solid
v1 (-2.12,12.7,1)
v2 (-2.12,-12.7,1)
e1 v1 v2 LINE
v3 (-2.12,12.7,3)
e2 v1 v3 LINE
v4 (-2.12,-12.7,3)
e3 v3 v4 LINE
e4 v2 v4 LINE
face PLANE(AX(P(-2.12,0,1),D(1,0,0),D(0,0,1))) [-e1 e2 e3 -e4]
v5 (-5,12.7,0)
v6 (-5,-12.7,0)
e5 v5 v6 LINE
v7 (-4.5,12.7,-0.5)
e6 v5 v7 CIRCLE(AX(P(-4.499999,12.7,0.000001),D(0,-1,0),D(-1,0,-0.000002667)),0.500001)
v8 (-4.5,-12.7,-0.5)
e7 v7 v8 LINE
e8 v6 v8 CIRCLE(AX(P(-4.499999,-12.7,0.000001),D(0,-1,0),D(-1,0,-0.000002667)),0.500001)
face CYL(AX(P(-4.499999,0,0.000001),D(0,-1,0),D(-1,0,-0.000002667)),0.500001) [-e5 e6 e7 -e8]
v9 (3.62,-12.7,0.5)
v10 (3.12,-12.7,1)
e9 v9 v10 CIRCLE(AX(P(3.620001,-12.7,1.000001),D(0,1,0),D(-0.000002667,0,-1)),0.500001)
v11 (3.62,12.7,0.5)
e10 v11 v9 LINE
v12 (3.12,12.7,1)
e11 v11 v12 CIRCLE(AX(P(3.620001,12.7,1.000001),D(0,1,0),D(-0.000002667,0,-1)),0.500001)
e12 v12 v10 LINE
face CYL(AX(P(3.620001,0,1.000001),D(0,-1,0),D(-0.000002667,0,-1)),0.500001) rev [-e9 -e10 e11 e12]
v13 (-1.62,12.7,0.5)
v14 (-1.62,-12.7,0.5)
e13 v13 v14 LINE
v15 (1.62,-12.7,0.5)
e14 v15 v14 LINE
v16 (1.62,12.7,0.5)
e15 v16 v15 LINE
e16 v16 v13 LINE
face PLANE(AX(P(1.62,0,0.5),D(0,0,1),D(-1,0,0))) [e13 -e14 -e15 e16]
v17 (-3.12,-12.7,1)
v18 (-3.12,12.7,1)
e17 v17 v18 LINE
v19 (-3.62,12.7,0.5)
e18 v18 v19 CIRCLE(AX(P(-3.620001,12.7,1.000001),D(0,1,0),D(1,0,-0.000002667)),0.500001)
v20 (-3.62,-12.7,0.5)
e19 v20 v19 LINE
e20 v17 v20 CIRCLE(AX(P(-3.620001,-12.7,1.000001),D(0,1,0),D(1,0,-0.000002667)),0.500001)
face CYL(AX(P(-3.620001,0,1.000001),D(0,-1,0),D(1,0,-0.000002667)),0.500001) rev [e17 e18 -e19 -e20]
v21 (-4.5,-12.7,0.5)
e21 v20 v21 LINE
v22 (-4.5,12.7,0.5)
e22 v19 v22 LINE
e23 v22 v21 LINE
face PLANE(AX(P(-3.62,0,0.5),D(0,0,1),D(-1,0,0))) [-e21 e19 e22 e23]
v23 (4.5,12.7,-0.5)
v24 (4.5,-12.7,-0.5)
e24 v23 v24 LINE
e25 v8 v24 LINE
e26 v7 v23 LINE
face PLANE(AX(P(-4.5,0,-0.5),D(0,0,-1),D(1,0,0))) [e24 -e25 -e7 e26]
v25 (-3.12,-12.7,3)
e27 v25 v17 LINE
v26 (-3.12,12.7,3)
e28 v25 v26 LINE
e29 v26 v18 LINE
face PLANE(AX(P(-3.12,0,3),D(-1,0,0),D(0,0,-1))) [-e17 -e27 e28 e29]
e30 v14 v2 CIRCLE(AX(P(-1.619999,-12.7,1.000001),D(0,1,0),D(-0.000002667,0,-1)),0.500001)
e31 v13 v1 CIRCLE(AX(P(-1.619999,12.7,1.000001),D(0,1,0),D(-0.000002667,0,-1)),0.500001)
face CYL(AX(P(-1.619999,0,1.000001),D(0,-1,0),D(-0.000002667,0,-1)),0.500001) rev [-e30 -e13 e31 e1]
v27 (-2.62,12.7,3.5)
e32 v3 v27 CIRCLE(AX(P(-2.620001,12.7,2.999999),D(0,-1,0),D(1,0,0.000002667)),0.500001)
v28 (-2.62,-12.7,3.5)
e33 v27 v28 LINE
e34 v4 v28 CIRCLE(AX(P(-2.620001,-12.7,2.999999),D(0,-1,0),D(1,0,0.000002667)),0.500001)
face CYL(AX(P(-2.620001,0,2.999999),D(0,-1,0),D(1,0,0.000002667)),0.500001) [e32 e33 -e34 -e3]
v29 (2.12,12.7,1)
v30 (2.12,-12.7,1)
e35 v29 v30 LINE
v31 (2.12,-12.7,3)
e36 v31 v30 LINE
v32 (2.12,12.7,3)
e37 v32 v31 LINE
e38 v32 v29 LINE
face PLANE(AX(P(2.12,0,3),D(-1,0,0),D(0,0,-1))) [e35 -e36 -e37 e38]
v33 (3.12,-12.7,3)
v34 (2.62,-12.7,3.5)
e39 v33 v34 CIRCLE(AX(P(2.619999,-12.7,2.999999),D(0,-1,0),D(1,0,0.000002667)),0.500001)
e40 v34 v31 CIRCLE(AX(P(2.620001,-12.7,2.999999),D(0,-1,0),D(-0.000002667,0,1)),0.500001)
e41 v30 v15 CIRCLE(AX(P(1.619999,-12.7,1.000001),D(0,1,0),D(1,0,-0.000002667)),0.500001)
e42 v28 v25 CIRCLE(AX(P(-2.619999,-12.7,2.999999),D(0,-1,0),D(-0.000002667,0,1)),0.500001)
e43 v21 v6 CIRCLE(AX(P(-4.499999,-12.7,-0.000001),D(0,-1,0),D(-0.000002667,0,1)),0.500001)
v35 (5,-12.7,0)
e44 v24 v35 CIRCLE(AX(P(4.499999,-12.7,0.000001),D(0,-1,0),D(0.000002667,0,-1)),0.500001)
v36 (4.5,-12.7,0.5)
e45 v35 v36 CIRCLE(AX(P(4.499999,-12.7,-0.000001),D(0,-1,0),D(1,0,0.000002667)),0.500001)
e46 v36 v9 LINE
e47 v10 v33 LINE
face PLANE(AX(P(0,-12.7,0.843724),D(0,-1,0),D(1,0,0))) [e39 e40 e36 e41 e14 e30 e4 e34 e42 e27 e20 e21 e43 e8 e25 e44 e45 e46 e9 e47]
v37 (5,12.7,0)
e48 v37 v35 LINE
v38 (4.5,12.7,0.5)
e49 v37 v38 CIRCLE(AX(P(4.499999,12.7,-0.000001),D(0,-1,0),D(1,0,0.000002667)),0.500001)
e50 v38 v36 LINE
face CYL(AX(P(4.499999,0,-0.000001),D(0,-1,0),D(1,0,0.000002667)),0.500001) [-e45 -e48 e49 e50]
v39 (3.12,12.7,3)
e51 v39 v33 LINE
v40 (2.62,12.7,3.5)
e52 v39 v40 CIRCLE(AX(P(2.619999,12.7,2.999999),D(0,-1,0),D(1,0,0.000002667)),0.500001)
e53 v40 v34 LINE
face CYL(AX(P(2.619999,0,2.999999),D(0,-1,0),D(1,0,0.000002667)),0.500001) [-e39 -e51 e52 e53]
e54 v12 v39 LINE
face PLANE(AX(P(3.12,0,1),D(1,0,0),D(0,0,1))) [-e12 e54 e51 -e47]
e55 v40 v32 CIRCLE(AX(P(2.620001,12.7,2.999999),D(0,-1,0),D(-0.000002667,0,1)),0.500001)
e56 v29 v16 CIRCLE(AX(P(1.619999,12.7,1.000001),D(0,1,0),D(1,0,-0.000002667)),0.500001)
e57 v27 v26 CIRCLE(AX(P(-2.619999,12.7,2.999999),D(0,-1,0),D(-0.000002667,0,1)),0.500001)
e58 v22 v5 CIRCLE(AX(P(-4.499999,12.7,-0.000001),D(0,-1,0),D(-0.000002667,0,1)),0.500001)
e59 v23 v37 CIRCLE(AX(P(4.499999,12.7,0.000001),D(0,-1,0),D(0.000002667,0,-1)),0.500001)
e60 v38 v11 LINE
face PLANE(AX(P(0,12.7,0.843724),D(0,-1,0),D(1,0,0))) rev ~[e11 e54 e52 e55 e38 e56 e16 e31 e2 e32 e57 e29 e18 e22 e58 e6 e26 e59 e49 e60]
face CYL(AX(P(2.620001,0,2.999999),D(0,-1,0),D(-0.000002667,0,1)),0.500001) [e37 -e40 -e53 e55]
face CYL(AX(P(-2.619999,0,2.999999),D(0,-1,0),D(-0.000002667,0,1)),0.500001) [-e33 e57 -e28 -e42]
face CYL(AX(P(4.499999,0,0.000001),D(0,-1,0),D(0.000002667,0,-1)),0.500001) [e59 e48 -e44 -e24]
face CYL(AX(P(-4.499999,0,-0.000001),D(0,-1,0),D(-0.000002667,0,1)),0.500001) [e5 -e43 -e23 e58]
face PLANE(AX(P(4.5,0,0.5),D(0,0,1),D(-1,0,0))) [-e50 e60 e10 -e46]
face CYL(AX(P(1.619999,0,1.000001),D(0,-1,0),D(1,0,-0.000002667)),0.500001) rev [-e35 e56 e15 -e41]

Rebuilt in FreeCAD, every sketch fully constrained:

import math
import FreeCAD as App
import Part
import Sketcher

V = App.Vector
Q = App.Units.Quantity

doc = App.newDocument("Part")
body = doc.addObject("PartDesign::Body", "Body")

sketch1 = doc.addObject("Sketcher::SketchObject", "Sketch")
body.addObject(sketch1)
sketch1.AttachmentSupport = (doc.XZ_Plane, [""])
sketch1.MapMode = "FlatFace"
sketch1.addGeometry(Part.LineSegment(V(-3.6, 0.5, 0), V(-4.5, 0.5, 0)), False)
sketch1.addGeometry(Part.ArcOfCircle(Part.Circle(V(-4.5, 0, 0), V(0, 0, 1), 0.5), math.radians(90), math.radians(180)), False)
sketch1.addGeometry(Part.ArcOfCircle(Part.Circle(V(-4.5, 0, 0), V(0, 0, 1), 0.5), math.radians(-180), math.radians(-90)), False)
sketch1.addGeometry(Part.LineSegment(V(-4.5, -0.5, 0), V(4.5, -0.5, 0)), False)
sketch1.addGeometry(Part.ArcOfCircle(Part.Circle(V(4.5, 0, 0), V(0, 0, 1), 0.5), math.radians(-90), math.radians(0)), False)
sketch1.addGeometry(Part.ArcOfCircle(Part.Circle(V(4.5, 0, 0), V(0, 0, 1), 0.5), math.radians(0), math.radians(90)), False)
sketch1.addGeometry(Part.LineSegment(V(4.5, 0.5, 0), V(3.6, 0.5, 0)), False)
sketch1.addGeometry(Part.ArcOfCircle(Part.Circle(V(3.6, 1, 0), V(0, 0, 1), 0.5), math.radians(-180), math.radians(-90)), False)
sketch1.addGeometry(Part.LineSegment(V(3.1, 1, 0), V(3.1, 3, 0)), False)
sketch1.addGeometry(Part.ArcOfCircle(Part.Circle(V(2.6, 3, 0), V(0, 0, 1), 0.5), math.radians(0), math.radians(90)), False)
sketch1.addGeometry(Part.ArcOfCircle(Part.Circle(V(2.6, 3, 0), V(0, 0, 1), 0.5), math.radians(90), math.radians(180)), False)
sketch1.addGeometry(Part.LineSegment(V(2.1, 3, 0), V(2.1, 1, 0)), False)
sketch1.addGeometry(Part.ArcOfCircle(Part.Circle(V(1.6, 1, 0), V(0, 0, 1), 0.5), math.radians(-90), math.radians(0)), False)
sketch1.addGeometry(Part.LineSegment(V(1.6, 0.5, 0), V(-1.6, 0.5, 0)), False)
sketch1.addGeometry(Part.ArcOfCircle(Part.Circle(V(-1.6, 1, 0), V(0, 0, 1), 0.5), math.radians(-180), math.radians(-90)), False)
sketch1.addGeometry(Part.LineSegment(V(-2.1, 1, 0), V(-2.1, 3, 0)), False)
sketch1.addGeometry(Part.ArcOfCircle(Part.Circle(V(-2.6, 3, 0), V(0, 0, 1), 0.5), math.radians(0), math.radians(90)), False)
sketch1.addGeometry(Part.ArcOfCircle(Part.Circle(V(-2.6, 3, 0), V(0, 0, 1), 0.5), math.radians(90), math.radians(180)), False)
sketch1.addGeometry(Part.LineSegment(V(-3.1, 3, 0), V(-3.1, 1, 0)), False)
sketch1.addGeometry(Part.ArcOfCircle(Part.Circle(V(-3.6, 1, 0), V(0, 0, 1), 0.5), math.radians(-90), math.radians(0)), False)
sketch1.addConstraint(Sketcher.Constraint("Coincident", 0, 2, 1, 1))
sketch1.addConstraint(Sketcher.Constraint("Coincident", 1, 2, 2, 1))
sketch1.addConstraint(Sketcher.Constraint("Coincident", 2, 2, 3, 1))
sketch1.addConstraint(Sketcher.Constraint("Coincident", 3, 2, 4, 1))
sketch1.addConstraint(Sketcher.Constraint("Coincident", 4, 2, 5, 1))
sketch1.addConstraint(Sketcher.Constraint("Coincident", 5, 2, 6, 1))
sketch1.addConstraint(Sketcher.Constraint("Coincident", 6, 2, 7, 2))
sketch1.addConstraint(Sketcher.Constraint("Coincident", 7, 1, 8, 1))
sketch1.addConstraint(Sketcher.Constraint("Coincident", 8, 2, 9, 1))
sketch1.addConstraint(Sketcher.Constraint("Coincident", 9, 2, 10, 1))
sketch1.addConstraint(Sketcher.Constraint("Coincident", 10, 2, 11, 1))
sketch1.addConstraint(Sketcher.Constraint("Coincident", 11, 2, 12, 2))
sketch1.addConstraint(Sketcher.Constraint("Coincident", 12, 1, 13, 1))
sketch1.addConstraint(Sketcher.Constraint("Coincident", 13, 2, 14, 2))
sketch1.addConstraint(Sketcher.Constraint("Coincident", 14, 1, 15, 1))
sketch1.addConstraint(Sketcher.Constraint("Coincident", 15, 2, 16, 1))
sketch1.addConstraint(Sketcher.Constraint("Coincident", 16, 2, 17, 1))
sketch1.addConstraint(Sketcher.Constraint("Coincident", 17, 2, 18, 1))
sketch1.addConstraint(Sketcher.Constraint("Coincident", 18, 2, 19, 2))
sketch1.addConstraint(Sketcher.Constraint("Coincident", 19, 1, 0, 1))
sketch1.addConstraint(Sketcher.Constraint("Horizontal", 0))
sketch1.addConstraint(Sketcher.Constraint("Horizontal", 3))
sketch1.addConstraint(Sketcher.Constraint("Horizontal", 6))
sketch1.addConstraint(Sketcher.Constraint("Vertical", 8))
sketch1.addConstraint(Sketcher.Constraint("Vertical", 11))
sketch1.addConstraint(Sketcher.Constraint("Horizontal", 13))
sketch1.addConstraint(Sketcher.Constraint("Vertical", 15))
sketch1.addConstraint(Sketcher.Constraint("Vertical", 18))
sketch1.addConstraint(Sketcher.Constraint("Coincident", 2, 3, 1, 3))
sketch1.addConstraint(Sketcher.Constraint("Coincident", 5, 3, 4, 3))
sketch1.addConstraint(Sketcher.Constraint("Coincident", 10, 3, 9, 3))
sketch1.addConstraint(Sketcher.Constraint("Coincident", 17, 3, 16, 3))
sketch1.addConstraint(Sketcher.Constraint("Equal", 2, 4))
sketch1.addConstraint(Sketcher.Constraint("Equal", 5, 7))
sketch1.addConstraint(Sketcher.Constraint("Equal", 7, 9))
sketch1.addConstraint(Sketcher.Constraint("Equal", 10, 12))
sketch1.addConstraint(Sketcher.Constraint("Equal", 12, 14))
sketch1.addConstraint(Sketcher.Constraint("Equal", 14, 16))
sketch1.addConstraint(Sketcher.Constraint("Equal", 17, 19))
sketch1.addConstraint(Sketcher.Constraint("Symmetric", 1, 3, 4, 3, -1, 1))
sketch1.addConstraint(Sketcher.Constraint("Symmetric", 9, 3, 16, 3, -2))
sketch1.addConstraint(Sketcher.Constraint("PointOnObject", 1, 2, -1))
sketch1.addConstraint(Sketcher.Constraint("PointOnObject", 4, 2, -1))
sketch1.addConstraint(Sketcher.Constraint("Horizontal", 7, 3, 12, 3))
sketch1.addConstraint(Sketcher.Constraint("Horizontal", 19, 3, 7, 1))
sketch1.addConstraint(Sketcher.Constraint("Horizontal", 17, 3, 8, 2))
sketch1.addConstraint(Sketcher.Constraint("Horizontal", 8, 2, 10, 2))
sketch1.addConstraint(Sketcher.Constraint("Horizontal", 7, 1, 11, 2))
sketch1.addConstraint(Sketcher.Constraint("Horizontal", 11, 2, 14, 1))
sketch1.addConstraint(Sketcher.Constraint("Horizontal", 10, 2, 15, 2))
sketch1.addConstraint(Sketcher.Constraint("Horizontal", 15, 2, 17, 2))
sketch1.addConstraint(Sketcher.Constraint("Horizontal", 14, 1, 18, 2))
sketch1.addConstraint(Sketcher.Constraint("Vertical", 2, 3, 0, 2))
sketch1.addConstraint(Sketcher.Constraint("Vertical", 0, 2, 2, 2))
sketch1.addConstraint(Sketcher.Constraint("Vertical", 5, 3, 3, 2))
sketch1.addConstraint(Sketcher.Constraint("Vertical", 3, 2, 5, 2))
sketch1.addConstraint(Sketcher.Constraint("Vertical", 7, 3, 6, 2))
sketch1.addConstraint(Sketcher.Constraint("Vertical", 10, 3, 9, 2))
sketch1.addConstraint(Sketcher.Constraint("Vertical", 14, 3, 13, 2))
sketch1.addConstraint(Sketcher.Constraint("Vertical", 17, 3, 16, 2))
sketch1.addConstraint(Sketcher.Constraint("Equal", 0, 6))
sketch1.addConstraint(Sketcher.Constraint("Radius", 1, Q("0.500001 mm")))
sketch1.addConstraint(Sketcher.Constraint("DistanceX", 3, 1, 3, 2, Q("9 mm")))
sketch1.addConstraint(Sketcher.Constraint("DistanceY", 8, 1, 8, 2, Q("2 mm")))
sketch1.addConstraint(Sketcher.Constraint("DistanceX", 12, 1, 6, 2, Q("2 mm")))
sketch1.addConstraint(Sketcher.Constraint("DistanceX", 0, 2, 0, 1, Q("0.88 mm")))
pad1 = doc.addObject("PartDesign::Pad", "Pad")
body.addObject(pad1)
pad1.Profile = sketch1
pad1.Length = 25.4
pad1.Midplane = True

doc.recompute()
